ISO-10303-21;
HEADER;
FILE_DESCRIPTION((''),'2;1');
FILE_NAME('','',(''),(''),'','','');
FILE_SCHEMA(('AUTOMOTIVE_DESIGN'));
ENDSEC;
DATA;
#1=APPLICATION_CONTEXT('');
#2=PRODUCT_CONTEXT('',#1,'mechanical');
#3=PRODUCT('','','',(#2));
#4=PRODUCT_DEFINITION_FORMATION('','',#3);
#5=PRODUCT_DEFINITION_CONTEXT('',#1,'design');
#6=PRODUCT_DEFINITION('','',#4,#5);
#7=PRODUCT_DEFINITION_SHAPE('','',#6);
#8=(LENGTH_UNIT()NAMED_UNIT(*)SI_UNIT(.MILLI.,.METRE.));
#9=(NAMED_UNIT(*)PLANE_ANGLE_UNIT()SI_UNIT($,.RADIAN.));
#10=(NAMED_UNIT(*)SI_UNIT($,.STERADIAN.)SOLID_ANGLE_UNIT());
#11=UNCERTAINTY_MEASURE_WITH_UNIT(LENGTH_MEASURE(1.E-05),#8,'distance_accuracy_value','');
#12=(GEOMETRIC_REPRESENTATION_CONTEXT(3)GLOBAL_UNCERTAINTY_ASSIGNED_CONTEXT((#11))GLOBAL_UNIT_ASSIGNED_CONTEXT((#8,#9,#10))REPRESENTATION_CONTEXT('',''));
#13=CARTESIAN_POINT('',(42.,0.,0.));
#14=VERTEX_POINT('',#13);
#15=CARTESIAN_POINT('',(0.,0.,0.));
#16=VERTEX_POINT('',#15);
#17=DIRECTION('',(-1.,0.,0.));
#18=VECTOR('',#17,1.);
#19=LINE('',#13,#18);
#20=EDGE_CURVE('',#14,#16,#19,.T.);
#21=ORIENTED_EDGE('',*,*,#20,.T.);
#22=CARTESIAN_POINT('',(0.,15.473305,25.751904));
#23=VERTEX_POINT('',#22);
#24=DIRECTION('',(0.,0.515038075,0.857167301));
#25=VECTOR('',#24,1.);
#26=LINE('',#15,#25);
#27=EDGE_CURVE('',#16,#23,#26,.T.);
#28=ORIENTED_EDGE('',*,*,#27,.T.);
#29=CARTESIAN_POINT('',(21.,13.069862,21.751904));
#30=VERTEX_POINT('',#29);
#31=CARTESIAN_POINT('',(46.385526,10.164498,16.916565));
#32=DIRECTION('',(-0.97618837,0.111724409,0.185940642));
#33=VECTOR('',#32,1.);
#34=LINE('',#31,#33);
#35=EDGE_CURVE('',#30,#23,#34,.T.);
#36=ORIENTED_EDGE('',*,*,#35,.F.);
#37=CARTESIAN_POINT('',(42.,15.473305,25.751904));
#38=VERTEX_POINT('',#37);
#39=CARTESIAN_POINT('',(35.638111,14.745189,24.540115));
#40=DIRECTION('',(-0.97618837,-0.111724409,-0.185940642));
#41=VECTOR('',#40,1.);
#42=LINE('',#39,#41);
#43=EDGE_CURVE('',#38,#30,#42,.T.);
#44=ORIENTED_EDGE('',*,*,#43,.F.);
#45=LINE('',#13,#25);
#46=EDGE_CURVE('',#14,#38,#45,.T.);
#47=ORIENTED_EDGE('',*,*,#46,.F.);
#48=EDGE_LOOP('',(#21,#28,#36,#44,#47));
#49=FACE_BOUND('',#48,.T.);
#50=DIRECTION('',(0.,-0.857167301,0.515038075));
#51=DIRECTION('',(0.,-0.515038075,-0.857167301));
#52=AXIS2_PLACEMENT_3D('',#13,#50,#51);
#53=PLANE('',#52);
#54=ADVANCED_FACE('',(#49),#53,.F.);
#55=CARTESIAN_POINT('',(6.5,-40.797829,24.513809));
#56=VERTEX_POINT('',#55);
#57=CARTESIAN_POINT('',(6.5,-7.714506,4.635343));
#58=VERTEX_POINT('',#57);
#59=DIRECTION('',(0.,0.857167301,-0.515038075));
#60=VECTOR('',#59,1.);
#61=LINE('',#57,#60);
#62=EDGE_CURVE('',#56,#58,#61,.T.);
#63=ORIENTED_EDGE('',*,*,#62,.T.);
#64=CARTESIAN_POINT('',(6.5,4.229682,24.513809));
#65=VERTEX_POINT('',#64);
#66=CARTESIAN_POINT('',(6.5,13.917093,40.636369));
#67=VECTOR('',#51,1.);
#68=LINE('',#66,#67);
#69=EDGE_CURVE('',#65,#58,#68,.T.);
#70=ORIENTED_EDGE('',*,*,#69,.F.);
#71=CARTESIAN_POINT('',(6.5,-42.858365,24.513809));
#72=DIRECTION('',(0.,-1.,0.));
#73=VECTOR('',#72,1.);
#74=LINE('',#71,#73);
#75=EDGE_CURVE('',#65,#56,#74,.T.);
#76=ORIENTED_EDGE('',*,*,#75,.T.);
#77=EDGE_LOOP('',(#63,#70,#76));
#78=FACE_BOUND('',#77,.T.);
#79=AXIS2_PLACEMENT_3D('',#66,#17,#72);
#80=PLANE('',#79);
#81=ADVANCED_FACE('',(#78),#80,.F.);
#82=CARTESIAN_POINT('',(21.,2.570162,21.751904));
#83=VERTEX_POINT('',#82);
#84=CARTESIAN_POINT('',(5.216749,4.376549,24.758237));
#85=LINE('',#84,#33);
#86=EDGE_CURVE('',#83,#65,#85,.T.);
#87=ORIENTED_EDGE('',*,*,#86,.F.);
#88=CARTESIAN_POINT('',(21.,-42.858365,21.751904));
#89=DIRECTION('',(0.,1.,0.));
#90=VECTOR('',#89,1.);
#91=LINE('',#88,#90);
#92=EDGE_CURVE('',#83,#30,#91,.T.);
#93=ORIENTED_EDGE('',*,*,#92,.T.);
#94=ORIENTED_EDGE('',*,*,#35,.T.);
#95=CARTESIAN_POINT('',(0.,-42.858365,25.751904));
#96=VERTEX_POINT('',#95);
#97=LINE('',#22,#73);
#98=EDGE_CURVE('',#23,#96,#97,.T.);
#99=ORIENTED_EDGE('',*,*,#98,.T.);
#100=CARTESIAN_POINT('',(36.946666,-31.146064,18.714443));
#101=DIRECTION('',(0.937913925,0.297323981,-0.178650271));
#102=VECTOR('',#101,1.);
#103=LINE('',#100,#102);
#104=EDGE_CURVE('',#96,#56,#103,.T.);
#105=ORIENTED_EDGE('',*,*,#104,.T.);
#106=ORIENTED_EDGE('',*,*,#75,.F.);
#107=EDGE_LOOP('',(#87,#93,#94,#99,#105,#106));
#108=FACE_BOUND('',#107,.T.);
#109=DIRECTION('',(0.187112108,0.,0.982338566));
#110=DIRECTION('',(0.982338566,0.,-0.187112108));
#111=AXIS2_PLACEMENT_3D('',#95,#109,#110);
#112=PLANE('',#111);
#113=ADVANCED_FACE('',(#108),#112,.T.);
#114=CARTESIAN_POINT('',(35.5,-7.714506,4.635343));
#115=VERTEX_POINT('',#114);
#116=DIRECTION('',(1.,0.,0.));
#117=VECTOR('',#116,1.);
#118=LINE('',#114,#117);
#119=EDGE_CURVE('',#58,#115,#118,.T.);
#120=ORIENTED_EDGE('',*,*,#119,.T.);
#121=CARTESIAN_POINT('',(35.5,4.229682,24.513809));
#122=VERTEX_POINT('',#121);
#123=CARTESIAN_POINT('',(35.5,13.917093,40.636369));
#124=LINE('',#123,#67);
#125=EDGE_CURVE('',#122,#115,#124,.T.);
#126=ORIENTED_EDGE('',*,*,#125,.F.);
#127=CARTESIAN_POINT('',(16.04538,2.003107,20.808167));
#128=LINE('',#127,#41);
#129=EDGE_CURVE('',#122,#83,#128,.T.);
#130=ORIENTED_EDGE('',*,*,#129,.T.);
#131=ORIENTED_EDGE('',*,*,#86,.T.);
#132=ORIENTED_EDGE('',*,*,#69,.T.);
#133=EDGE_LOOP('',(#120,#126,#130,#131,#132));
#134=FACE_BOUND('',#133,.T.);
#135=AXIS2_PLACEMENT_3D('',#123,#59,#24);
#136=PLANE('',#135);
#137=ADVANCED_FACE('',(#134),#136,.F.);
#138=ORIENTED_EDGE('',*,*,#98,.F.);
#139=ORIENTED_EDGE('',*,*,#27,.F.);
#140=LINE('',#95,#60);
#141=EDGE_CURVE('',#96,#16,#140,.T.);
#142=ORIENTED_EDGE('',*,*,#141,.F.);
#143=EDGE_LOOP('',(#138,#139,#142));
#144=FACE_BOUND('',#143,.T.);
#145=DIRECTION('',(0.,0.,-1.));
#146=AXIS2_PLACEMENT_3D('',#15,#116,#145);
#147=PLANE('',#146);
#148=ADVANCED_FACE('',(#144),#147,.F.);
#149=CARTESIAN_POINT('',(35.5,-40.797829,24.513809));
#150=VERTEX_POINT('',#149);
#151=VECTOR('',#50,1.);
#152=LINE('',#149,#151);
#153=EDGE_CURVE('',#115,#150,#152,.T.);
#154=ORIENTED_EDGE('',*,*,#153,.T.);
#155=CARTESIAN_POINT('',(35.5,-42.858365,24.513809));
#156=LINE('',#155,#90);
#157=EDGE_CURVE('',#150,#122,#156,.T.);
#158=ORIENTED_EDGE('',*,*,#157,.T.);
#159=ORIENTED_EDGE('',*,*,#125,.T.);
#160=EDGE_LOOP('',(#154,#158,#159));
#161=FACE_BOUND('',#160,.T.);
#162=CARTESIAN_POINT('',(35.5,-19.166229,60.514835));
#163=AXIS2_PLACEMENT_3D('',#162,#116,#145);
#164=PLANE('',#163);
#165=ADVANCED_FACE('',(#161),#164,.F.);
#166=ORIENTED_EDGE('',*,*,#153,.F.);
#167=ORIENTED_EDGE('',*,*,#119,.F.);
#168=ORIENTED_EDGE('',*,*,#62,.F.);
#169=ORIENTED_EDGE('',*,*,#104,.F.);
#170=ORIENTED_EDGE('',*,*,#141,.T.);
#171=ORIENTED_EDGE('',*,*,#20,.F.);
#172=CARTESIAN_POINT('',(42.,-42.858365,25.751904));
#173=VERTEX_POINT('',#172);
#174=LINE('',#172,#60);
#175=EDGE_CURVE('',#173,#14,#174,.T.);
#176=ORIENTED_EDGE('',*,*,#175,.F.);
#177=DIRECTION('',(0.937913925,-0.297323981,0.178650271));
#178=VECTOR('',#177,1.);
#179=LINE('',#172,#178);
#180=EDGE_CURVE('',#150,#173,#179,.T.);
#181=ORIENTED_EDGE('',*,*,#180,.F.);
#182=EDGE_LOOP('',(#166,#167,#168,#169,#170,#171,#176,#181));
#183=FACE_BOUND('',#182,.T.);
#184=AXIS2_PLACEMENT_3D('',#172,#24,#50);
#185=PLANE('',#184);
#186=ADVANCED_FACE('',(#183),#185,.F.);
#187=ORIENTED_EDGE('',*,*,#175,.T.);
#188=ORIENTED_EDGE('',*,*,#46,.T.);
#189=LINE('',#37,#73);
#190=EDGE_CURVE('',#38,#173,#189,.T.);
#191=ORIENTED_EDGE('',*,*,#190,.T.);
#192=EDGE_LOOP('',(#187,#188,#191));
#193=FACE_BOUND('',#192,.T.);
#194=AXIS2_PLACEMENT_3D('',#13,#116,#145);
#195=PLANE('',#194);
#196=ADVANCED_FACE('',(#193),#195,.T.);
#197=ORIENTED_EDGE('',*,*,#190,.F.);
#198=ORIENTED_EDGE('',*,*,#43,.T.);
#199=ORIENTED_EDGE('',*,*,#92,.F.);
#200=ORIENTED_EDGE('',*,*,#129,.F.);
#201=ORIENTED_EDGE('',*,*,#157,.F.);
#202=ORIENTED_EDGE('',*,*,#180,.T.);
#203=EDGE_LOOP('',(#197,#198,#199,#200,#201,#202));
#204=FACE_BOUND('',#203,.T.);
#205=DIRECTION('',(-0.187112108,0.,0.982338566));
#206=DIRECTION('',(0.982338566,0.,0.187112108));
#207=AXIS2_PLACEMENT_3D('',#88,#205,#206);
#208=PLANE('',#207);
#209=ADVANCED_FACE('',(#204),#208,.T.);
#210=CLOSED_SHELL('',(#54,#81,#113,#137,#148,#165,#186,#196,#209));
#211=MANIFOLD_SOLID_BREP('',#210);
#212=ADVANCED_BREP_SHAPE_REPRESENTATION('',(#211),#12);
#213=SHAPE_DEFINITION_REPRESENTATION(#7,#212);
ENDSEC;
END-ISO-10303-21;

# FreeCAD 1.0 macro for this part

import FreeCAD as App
import Part
import Sketcher

V = App.Vector
Q = App.Units.Quantity


def add_polygon(sketch, points):
    """Adds a closed chain of lines whose ends are joined by coincident constraints."""
    first, n = sketch.GeometryCount, len(points)
    for a, b in zip(points, points[1:] + points[:1]):
        sketch.addGeometry(Part.LineSegment(App.Vector(*a, 0), App.Vector(*b, 0)), False)
    for i in range(n):
        sketch.addConstraint(Sketcher.Constraint("Coincident", first + i, 2, first + (i + 1) % n, 1))

doc = App.newDocument("Part")
body = doc.addObject("PartDesign::Body", "Body")

# Sketch on YZ plane
sketch1 = body.newObject("Sketcher::SketchObject", "Sketch")
sketch1.AttachmentSupport = (doc.getObject("YZ_Plane"), [""])
sketch1.MapMode = "FlatFace"
add_polygon(sketch1, [(0, 0), (15, 26), (-43, 26)])  # lines 0-2
sketch1.addConstraint([
    Sketcher.Constraint("Horizontal", 1),
    Sketcher.Constraint("Coincident", 2, 2, -1, 1),
    Sketcher.Constraint("Perpendicular", 0, 2),
    Sketcher.Constraint("Angle", 0, Q("59 deg")),
    Sketcher.Constraint("Distance", 2, Q("50 mm")),
])
pad1 = body.newObject("PartDesign::Pad", "Pad")
pad1.Profile = sketch1
pad1.Length = 42

# Sketch on XZ plane
sketch2 = body.newObject("Sketcher::SketchObject", "Sketch001")
sketch2.AttachmentSupport = (doc.getObject("XZ_Plane"), [""])
sketch2.MapMode = "FlatFace"
sketch2.AttachmentOffset = App.Placement(V(0, 0, -15.473305), App.Rotation())
add_polygon(sketch2, [(21, 22), (0, 26), (42, 26)])  # lines 0-2
sketch2.addConstraint([
    Sketcher.Constraint("Horizontal", 1),
    Sketcher.Constraint("PointOnObject", 0, 2, -2),
    Sketcher.Constraint("Equal", 0, 2),
    Sketcher.Constraint("DistanceX", 1, 1, 1, 2, Q("42 mm")),
    Sketcher.Constraint("DistanceY", 2, 2, 0, 2, Q("4 mm")),
    Sketcher.Constraint("DistanceY", -1, 1, 0, 2, Q("25.751904 mm")),
])
pocket1 = body.newObject("PartDesign::Pocket", "Pocket")
pocket1.Profile = sketch2
pocket1.Type = "ThroughAll"
pocket1.Reversed = True

# Sketch on an angled plane
sketch3 = body.newObject("Sketcher::SketchObject", "Sketch002")
sketch3.Placement = App.Placement(V(0, 0, 0), App.Rotation(V(-1, 0, 0), V(0, 0.857167301, -0.515038075), V(0, -0.515038075, -0.857167301), "ZXY"))
add_polygon(sketch3, [(-36, -9), (-36, -48), (-6, -48), (-6, -9)])  # lines 0-3
sketch3.addConstraint([
    Sketcher.Constraint("Vertical", 0),
    Sketcher.Constraint("Horizontal", 1),
    Sketcher.Constraint("Vertical", 2),
    Sketcher.Constraint("Horizontal", 3),
    Sketcher.Constraint("DistanceX", 1, 1, 1, 2, Q("29 mm")),
    Sketcher.Constraint("DistanceY", 2, 2, -1, 1, Q("9 mm")),
    Sketcher.Constraint("DistanceX", 0, 2, -1, 1, Q("35.5 mm")),
    Sketcher.Constraint("DistanceY", 0, 2, 0, 1, Q("38.596109 mm")),
])
pocket2 = body.newObject("PartDesign::Pocket", "Pocket001")
pocket2.Profile = sketch3
pocket2.Length = 42

doc.recompute()
